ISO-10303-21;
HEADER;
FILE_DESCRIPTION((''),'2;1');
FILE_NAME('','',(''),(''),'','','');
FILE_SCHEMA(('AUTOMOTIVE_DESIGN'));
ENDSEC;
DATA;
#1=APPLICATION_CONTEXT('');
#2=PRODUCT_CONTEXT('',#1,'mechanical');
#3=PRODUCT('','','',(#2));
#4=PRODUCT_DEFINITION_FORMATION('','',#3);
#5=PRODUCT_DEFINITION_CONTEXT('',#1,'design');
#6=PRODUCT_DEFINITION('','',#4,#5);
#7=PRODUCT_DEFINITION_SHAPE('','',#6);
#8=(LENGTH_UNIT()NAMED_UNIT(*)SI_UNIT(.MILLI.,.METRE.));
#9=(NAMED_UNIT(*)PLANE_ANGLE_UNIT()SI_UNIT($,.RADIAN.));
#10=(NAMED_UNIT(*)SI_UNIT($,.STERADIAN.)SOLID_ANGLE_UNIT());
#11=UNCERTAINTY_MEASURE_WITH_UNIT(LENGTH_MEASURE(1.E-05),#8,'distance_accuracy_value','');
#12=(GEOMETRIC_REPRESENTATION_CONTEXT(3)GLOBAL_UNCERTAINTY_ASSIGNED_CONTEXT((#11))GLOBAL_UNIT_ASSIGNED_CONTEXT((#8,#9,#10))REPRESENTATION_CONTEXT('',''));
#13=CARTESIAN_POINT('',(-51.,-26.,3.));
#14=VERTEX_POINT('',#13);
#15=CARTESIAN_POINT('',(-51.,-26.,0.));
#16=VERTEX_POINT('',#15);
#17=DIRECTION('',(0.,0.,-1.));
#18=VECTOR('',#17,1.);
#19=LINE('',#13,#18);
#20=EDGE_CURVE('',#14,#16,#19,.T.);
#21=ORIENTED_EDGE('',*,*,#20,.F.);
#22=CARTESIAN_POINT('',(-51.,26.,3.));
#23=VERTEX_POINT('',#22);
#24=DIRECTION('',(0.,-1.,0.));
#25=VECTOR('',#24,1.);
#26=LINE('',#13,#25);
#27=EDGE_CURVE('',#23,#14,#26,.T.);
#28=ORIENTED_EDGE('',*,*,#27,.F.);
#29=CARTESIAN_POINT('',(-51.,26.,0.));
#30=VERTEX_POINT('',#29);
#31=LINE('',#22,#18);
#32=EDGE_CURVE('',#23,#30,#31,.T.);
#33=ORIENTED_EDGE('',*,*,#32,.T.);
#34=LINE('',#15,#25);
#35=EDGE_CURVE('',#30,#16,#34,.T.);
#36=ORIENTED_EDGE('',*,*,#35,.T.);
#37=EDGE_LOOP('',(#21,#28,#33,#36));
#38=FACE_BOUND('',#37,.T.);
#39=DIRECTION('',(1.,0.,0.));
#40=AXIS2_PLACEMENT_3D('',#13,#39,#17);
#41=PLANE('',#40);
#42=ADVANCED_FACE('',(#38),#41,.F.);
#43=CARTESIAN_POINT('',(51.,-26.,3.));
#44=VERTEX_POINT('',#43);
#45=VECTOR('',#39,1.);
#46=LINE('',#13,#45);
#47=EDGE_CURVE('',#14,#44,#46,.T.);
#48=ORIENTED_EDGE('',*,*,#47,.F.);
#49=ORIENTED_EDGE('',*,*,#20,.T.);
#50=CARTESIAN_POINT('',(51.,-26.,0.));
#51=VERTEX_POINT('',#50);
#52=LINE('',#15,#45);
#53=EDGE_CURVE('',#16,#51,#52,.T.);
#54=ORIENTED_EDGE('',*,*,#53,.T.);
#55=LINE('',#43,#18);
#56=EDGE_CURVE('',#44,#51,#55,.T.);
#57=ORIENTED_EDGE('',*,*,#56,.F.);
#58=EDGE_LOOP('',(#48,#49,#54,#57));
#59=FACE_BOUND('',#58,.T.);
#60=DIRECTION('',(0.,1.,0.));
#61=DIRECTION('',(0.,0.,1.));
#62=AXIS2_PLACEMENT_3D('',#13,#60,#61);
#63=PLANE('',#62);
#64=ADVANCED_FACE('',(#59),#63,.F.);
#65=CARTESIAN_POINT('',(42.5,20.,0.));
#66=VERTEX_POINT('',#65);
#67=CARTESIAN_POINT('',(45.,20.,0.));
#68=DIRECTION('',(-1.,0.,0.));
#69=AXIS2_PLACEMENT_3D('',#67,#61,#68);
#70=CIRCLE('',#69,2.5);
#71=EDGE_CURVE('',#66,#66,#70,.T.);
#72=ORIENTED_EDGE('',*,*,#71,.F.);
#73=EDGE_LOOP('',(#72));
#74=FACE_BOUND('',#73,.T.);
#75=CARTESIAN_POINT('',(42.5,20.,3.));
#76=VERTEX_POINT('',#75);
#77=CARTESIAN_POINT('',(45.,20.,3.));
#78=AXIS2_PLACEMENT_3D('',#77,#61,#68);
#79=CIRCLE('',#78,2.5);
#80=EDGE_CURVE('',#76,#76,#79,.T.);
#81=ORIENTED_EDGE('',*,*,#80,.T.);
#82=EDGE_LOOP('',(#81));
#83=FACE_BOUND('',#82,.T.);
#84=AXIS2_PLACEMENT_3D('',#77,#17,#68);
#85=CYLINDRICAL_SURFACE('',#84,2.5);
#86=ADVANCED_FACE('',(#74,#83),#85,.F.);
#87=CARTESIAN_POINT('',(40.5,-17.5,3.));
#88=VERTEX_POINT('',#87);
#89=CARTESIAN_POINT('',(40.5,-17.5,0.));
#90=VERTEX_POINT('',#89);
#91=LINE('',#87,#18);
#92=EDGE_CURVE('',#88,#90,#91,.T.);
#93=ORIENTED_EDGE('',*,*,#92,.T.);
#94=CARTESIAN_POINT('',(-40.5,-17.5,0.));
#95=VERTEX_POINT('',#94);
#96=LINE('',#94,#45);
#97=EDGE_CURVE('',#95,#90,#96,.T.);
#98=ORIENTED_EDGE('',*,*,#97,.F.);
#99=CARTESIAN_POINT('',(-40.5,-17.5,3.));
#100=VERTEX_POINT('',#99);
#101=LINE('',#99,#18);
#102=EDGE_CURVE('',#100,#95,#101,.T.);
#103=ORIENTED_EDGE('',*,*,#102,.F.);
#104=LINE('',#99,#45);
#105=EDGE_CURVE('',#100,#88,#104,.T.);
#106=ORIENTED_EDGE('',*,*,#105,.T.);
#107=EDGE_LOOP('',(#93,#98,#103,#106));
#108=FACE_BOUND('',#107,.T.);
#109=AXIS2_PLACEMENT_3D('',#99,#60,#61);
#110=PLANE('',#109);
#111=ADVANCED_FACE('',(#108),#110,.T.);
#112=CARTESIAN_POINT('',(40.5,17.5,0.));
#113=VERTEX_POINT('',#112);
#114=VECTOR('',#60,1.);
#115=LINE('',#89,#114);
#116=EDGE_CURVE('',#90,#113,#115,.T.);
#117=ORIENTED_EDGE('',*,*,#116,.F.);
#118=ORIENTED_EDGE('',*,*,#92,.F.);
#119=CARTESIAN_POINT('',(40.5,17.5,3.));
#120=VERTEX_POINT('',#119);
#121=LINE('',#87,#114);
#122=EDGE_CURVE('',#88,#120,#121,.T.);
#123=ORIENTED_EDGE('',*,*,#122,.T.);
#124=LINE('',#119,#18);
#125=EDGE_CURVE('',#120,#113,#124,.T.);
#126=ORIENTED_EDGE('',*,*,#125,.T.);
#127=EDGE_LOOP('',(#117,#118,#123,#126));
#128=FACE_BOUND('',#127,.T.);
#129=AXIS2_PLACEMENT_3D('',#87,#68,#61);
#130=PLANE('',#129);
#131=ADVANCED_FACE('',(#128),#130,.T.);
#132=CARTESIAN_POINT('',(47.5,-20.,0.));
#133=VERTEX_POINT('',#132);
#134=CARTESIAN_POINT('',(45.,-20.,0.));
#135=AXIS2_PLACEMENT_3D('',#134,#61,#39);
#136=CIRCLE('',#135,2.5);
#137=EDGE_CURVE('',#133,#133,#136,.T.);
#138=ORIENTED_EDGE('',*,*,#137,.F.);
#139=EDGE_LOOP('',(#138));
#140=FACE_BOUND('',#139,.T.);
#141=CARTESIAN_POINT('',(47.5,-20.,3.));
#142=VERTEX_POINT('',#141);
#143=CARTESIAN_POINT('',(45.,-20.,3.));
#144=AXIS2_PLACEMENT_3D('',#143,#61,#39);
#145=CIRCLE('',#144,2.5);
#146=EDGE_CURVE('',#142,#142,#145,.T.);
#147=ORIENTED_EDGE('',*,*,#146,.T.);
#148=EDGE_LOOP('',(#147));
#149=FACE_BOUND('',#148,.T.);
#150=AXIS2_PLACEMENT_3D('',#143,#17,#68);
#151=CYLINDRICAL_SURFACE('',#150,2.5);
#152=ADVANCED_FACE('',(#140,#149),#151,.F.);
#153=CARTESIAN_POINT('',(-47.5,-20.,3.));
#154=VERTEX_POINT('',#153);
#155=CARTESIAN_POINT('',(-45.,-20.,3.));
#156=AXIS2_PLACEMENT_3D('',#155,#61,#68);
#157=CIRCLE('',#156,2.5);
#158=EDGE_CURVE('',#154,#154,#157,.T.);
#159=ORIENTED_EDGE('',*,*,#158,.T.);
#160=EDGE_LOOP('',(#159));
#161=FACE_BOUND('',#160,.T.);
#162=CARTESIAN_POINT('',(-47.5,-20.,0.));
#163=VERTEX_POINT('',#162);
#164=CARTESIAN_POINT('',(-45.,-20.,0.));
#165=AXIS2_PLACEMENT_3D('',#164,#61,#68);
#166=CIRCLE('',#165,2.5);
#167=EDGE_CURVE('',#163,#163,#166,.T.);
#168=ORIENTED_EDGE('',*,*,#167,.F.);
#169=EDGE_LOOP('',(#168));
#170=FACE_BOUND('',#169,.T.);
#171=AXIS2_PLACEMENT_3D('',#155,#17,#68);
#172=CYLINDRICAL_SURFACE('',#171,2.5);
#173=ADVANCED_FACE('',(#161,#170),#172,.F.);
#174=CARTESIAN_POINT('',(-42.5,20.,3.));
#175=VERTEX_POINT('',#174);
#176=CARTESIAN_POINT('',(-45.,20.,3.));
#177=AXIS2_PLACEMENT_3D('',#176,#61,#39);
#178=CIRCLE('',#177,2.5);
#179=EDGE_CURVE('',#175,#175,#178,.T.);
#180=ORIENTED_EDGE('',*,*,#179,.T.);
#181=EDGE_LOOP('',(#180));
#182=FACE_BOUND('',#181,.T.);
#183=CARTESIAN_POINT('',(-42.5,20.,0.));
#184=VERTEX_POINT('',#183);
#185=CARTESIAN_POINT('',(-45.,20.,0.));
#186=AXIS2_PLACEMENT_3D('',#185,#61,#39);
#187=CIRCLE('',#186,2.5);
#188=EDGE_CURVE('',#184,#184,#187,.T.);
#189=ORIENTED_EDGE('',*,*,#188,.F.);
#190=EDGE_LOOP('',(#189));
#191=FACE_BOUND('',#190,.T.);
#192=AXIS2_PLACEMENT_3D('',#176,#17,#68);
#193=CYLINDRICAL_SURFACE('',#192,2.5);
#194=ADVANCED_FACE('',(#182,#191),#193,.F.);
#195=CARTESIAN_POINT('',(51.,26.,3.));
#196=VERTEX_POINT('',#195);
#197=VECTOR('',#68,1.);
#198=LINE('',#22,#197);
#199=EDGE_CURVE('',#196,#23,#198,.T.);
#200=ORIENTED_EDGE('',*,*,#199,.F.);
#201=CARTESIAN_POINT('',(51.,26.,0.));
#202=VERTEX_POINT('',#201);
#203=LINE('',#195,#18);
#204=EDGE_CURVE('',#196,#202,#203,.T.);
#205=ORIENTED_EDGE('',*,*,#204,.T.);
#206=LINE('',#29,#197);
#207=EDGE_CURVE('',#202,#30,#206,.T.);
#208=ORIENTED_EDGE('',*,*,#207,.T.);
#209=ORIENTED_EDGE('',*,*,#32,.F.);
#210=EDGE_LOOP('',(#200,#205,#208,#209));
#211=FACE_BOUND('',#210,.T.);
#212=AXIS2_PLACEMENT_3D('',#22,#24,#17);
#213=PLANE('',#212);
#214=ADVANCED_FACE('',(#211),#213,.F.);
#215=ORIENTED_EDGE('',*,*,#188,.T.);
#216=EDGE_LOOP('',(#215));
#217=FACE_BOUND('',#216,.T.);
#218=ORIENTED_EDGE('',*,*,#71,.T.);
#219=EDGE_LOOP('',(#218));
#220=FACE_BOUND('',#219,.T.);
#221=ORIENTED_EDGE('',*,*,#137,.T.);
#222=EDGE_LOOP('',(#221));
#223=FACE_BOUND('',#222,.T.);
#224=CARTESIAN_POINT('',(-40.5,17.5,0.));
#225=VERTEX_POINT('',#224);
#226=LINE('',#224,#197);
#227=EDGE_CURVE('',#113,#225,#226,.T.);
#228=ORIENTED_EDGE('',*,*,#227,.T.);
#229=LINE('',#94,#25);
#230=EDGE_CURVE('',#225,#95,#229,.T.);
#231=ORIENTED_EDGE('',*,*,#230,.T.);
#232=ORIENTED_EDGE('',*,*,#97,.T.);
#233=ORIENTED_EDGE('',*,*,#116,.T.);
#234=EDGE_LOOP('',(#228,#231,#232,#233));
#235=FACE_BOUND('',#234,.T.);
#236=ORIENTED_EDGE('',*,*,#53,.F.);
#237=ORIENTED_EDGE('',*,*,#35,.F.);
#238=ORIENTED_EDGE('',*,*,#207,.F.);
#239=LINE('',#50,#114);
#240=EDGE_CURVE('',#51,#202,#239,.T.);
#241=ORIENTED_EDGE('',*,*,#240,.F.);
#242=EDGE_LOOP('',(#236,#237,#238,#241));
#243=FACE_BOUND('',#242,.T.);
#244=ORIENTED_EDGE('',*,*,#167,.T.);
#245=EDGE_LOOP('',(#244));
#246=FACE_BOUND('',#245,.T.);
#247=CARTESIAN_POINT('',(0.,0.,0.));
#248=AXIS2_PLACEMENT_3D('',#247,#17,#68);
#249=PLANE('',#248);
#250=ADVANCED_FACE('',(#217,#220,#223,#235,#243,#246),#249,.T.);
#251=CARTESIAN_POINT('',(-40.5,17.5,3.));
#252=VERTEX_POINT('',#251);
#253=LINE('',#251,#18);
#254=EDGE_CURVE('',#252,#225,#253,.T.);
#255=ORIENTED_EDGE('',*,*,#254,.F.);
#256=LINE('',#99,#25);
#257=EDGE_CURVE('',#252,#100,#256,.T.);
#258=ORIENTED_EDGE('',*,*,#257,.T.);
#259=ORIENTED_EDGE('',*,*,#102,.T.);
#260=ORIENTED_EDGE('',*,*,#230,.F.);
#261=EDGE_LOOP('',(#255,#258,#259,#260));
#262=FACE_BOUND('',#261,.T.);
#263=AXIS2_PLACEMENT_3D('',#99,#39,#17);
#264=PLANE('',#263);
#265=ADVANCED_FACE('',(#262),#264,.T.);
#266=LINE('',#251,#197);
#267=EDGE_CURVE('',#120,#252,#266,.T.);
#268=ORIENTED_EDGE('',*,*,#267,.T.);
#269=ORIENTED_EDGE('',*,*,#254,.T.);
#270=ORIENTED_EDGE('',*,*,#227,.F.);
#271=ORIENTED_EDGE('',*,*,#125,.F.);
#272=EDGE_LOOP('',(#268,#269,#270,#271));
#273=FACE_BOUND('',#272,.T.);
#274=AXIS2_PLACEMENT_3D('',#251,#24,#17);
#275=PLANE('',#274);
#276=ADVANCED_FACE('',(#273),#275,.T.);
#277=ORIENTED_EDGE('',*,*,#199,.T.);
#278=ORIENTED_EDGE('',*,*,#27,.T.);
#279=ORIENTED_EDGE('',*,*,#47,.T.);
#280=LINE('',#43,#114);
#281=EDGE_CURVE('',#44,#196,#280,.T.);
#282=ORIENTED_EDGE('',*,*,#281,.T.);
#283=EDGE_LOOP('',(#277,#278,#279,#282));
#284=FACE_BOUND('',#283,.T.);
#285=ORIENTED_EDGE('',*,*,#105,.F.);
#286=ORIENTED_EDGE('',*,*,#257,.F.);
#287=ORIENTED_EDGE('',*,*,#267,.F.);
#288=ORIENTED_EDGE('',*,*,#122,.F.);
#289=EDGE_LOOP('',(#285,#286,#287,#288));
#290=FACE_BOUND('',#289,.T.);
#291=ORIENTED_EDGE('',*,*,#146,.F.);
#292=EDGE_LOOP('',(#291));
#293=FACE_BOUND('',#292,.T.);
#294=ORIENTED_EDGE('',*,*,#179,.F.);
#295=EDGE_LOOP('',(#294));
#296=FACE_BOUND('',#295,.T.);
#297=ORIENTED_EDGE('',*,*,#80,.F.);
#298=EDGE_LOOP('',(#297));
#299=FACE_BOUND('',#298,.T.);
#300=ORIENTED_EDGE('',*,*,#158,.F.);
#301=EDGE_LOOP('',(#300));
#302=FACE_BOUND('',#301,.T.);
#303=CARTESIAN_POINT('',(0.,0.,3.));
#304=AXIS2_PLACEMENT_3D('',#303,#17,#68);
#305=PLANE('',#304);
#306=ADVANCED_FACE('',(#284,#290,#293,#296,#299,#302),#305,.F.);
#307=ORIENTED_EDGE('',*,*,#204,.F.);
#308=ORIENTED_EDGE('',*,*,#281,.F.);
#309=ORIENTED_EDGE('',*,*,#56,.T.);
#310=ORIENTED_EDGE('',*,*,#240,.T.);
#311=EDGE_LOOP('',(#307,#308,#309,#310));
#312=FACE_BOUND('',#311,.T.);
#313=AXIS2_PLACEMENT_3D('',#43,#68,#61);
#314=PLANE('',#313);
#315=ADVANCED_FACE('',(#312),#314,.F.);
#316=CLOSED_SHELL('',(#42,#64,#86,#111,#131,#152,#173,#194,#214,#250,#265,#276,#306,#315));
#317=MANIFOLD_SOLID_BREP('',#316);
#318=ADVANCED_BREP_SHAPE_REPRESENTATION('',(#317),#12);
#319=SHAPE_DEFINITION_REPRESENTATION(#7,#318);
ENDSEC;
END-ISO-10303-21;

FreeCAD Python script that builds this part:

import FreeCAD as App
import Part
import Sketcher

doc = App.newDocument("Part")
body = doc.addObject("PartDesign::Body", "Body")

sketch1 = body.newObject("Sketcher::SketchObject", "Sketch")
sketch1.AttachmentSupport = (doc.getObject("XY_Plane"), [""])
sketch1.MapMode = "FlatFace"
sketch1.addGeometry([
    Part.LineSegment(App.Vector(-51, 26, 0), App.Vector(-51, -26, 0)),
    Part.LineSegment(App.Vector(-51, -26, 0), App.Vector(51, -26, 0)),
    Part.LineSegment(App.Vector(51, -26, 0), App.Vector(51, 26, 0)),
    Part.LineSegment(App.Vector(51, 26, 0), App.Vector(-51, 26, 0)),
    Part.Circle(App.Vector(-45, -20, 0), App.Vector(0, 0, 1), 2.5),
    Part.Circle(App.Vector(45, -20, 0), App.Vector(0, 0, 1), 2.5),
    Part.Circle(App.Vector(-45, 20, 0), App.Vector(0, 0, 1), 2.5),
    Part.LineSegment(App.Vector(40.5, -17.5, 0), App.Vector(-40.5, -17.5, 0)),
    Part.LineSegment(App.Vector(-40.5, -17.5, 0), App.Vector(-40.5, 17.5, 0)),
    Part.LineSegment(App.Vector(-40.5, 17.5, 0), App.Vector(40.5, 17.5, 0)),
    Part.LineSegment(App.Vector(40.5, 17.5, 0), App.Vector(40.5, -17.5, 0)),
    Part.Circle(App.Vector(45, 20, 0), App.Vector(0, 0, 1), 2.5),
], False)
sketch1.addConstraint([
    Sketcher.Constraint("Coincident", 0, 2, 1, 1),
    Sketcher.Constraint("Coincident", 1, 2, 2, 1),
    Sketcher.Constraint("Coincident", 2, 2, 3, 1),
    Sketcher.Constraint("Coincident", 3, 2, 0, 1),
    Sketcher.Constraint("Coincident", 7, 2, 8, 1),
    Sketcher.Constraint("Coincident", 8, 2, 9, 1),
    Sketcher.Constraint("Coincident", 9, 2, 10, 1),
    Sketcher.Constraint("Coincident", 10, 2, 7, 1),
    Sketcher.Constraint("Vertical", 0),
    Sketcher.Constraint("Horizontal", 1),
    Sketcher.Constraint("Vertical", 2),
    Sketcher.Constraint("Horizontal", 3),
    Sketcher.Constraint("Horizontal", 7),
    Sketcher.Constraint("Vertical", 8),
    Sketcher.Constraint("Horizontal", 9),
    Sketcher.Constraint("Vertical", 10),
    Sketcher.Constraint("Equal", 4, 5),
    Sketcher.Constraint("Equal", 5, 6),
    Sketcher.Constraint("Equal", 6, 11),
    Sketcher.Constraint("Symmetric", 5, 3, 6, 3, -1, 1),
    Sketcher.Constraint("Symmetric", 4, 3, 11, 3, -1, 1),
    Sketcher.Constraint("Symmetric", 0, 2, 2, 2, -1, 1),
    Sketcher.Constraint("Symmetric", 7, 2, 9, 2, -1, 1),
    Sketcher.Constraint("Symmetric", 4, 3, 5, 3, -2),
    Sketcher.Constraint("Diameter", 4, 5.0),
    Sketcher.Constraint("DistanceX", 1, 1, 1, 2, 102.0),
    Sketcher.Constraint("DistanceX", 7, 2, 7, 1, 81.0),
    Sketcher.Constraint("DistanceY", 0, 2, 0, 1, 52.0),
    Sketcher.Constraint("DistanceY", 8, 1, 8, 2, 35.0),
    Sketcher.Constraint("DistanceX", 4, 3, -1, 1, 45.0),
    Sketcher.Constraint("DistanceY", 4, 3, -1, 1, 20.0),
])
pad1 = body.newObject("PartDesign::Pad", "Pad")
pad1.Profile = sketch1
pad1.Length = 3

doc.recompute()
